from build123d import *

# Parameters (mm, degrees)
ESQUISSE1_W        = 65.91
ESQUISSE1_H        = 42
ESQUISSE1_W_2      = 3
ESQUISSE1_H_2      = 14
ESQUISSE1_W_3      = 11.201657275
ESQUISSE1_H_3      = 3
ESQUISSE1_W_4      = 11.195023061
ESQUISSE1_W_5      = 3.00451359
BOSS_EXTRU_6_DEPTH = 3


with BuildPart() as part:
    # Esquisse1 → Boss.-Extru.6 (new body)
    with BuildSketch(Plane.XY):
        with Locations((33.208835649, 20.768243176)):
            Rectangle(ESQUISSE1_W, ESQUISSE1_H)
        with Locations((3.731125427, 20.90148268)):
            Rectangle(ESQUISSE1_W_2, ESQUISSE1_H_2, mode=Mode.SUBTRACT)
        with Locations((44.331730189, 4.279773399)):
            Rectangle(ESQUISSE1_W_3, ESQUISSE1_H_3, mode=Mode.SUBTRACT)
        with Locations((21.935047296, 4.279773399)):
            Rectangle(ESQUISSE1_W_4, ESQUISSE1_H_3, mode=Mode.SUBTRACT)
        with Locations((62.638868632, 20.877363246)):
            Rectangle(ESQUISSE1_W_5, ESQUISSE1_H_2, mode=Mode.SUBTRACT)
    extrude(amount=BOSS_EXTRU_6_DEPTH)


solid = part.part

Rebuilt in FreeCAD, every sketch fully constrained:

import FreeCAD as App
import Part
import Sketcher


def add_polygon(sketch, points):
    """Adds a closed chain of lines whose ends are joined by coincident constraints."""
    first, n = sketch.GeometryCount, len(points)
    for a, b in zip(points, points[1:] + points[:1]):
        sketch.addGeometry(Part.LineSegment(App.Vector(*a, 0), App.Vector(*b, 0)), False)
    for i in range(n):
        sketch.addConstraint(Sketcher.Constraint("Coincident", first + i, 2, first + (i + 1) % n, 1))

doc = App.newDocument("Part")
body = doc.addObject("PartDesign::Body", "Body")

sketch1 = body.newObject("Sketcher::SketchObject", "Sketch")
sketch1.AttachmentSupport = (doc.getObject("XY_Plane"), [""])
sketch1.MapMode = "FlatFace"
add_polygon(sketch1, [(0.3, 41.8), (0.3, -0.2), (66.2, -0.2), (66.2, 41.8)])
add_polygon(sketch1, [(27.5, 2.8), (16.3, 2.8), (16.3, 5.8), (27.5, 5.8)])
add_polygon(sketch1, [(49.9, 2.8), (38.7, 2.8), (38.7, 5.8), (49.9, 5.8)])
add_polygon(sketch1, [(5.2, 13.9), (2.2, 13.9), (2.2, 27.9), (5.2, 27.9)])
add_polygon(sketch1, [(64.1, 13.9), (61.1, 13.9), (61.1, 27.9), (64.1, 27.9)])
sketch1.addConstraint([
    Sketcher.Constraint("Vertical", 0),
    Sketcher.Constraint("Horizontal", 1),
    Sketcher.Constraint("Vertical", 2),
    Sketcher.Constraint("Horizontal", 3),
    Sketcher.Constraint("Horizontal", 4),
    Sketcher.Constraint("Vertical", 5),
    Sketcher.Constraint("Horizontal", 6),
    Sketcher.Constraint("Vertical", 7),
    Sketcher.Constraint("Horizontal", 8),
    Sketcher.Constraint("Vertical", 9),
    Sketcher.Constraint("Horizontal", 10),
    Sketcher.Constraint("Vertical", 11),
    Sketcher.Constraint("Horizontal", 12),
    Sketcher.Constraint("Vertical", 13),
    Sketcher.Constraint("Horizontal", 14),
    Sketcher.Constraint("Vertical", 15),
    Sketcher.Constraint("Horizontal", 16),
    Sketcher.Constraint("Vertical", 17),
    Sketcher.Constraint("Horizontal", 18),
    Sketcher.Constraint("Vertical", 19),
    Sketcher.Constraint("Horizontal", 7, 2, 8, 2),
    Sketcher.Constraint("Horizontal", 6, 2, 9, 2),
    Sketcher.Constraint("Equal", 14, 5),
    Sketcher.Constraint("Equal", 15, 17),
    Sketcher.Constraint("DistanceX", 12, 2, 12, 1, 3.0),
    Sketcher.Constraint("DistanceY", 0, 2, 0, 1, 42.0),
    Sketcher.Constraint("DistanceY", 13, 1, 13, 2, 14.0),
    Sketcher.Constraint("DistanceX", 1, 1, 1, 2, 65.91),
    Sketcher.Constraint("DistanceX", 6, 2, 10, 2, 22.4),
    Sketcher.Constraint("DistanceX", -1, 1, 8, 2, 38.730902),
    Sketcher.Constraint("DistanceX", 0, 2, 4, 2, 16.0837),
    Sketcher.Constraint("DistanceX", 4, 2, 4, 1, 11.195023),
    Sketcher.Constraint("DistanceX", 8, 2, 8, 1, 11.201657),
    Sketcher.Constraint("DistanceX", 16, 2, 16, 1, 3.004514),
    Sketcher.Constraint("DistanceX", -1, 1, 16, 2, 61.136612),
    Sketcher.Constraint("DistanceY", 0, 2, 4, 2, 3.01153),
    Sketcher.Constraint("DistanceX", 0, 2, 12, 2, 1.97729),
    Sketcher.Constraint("DistanceY", 0, 2, 12, 2, 14.13324),
    Sketcher.Constraint("DistanceY", 10, 2, 16, 2, 8.09759),
    Sketcher.Constraint("DistanceY", 0, 2, -1, 1, 0.231757),
])
pad1 = body.newObject("PartDesign::Pad", "Pad")
pad1.Profile = sketch1
pad1.Length = 3

doc.recompute()
